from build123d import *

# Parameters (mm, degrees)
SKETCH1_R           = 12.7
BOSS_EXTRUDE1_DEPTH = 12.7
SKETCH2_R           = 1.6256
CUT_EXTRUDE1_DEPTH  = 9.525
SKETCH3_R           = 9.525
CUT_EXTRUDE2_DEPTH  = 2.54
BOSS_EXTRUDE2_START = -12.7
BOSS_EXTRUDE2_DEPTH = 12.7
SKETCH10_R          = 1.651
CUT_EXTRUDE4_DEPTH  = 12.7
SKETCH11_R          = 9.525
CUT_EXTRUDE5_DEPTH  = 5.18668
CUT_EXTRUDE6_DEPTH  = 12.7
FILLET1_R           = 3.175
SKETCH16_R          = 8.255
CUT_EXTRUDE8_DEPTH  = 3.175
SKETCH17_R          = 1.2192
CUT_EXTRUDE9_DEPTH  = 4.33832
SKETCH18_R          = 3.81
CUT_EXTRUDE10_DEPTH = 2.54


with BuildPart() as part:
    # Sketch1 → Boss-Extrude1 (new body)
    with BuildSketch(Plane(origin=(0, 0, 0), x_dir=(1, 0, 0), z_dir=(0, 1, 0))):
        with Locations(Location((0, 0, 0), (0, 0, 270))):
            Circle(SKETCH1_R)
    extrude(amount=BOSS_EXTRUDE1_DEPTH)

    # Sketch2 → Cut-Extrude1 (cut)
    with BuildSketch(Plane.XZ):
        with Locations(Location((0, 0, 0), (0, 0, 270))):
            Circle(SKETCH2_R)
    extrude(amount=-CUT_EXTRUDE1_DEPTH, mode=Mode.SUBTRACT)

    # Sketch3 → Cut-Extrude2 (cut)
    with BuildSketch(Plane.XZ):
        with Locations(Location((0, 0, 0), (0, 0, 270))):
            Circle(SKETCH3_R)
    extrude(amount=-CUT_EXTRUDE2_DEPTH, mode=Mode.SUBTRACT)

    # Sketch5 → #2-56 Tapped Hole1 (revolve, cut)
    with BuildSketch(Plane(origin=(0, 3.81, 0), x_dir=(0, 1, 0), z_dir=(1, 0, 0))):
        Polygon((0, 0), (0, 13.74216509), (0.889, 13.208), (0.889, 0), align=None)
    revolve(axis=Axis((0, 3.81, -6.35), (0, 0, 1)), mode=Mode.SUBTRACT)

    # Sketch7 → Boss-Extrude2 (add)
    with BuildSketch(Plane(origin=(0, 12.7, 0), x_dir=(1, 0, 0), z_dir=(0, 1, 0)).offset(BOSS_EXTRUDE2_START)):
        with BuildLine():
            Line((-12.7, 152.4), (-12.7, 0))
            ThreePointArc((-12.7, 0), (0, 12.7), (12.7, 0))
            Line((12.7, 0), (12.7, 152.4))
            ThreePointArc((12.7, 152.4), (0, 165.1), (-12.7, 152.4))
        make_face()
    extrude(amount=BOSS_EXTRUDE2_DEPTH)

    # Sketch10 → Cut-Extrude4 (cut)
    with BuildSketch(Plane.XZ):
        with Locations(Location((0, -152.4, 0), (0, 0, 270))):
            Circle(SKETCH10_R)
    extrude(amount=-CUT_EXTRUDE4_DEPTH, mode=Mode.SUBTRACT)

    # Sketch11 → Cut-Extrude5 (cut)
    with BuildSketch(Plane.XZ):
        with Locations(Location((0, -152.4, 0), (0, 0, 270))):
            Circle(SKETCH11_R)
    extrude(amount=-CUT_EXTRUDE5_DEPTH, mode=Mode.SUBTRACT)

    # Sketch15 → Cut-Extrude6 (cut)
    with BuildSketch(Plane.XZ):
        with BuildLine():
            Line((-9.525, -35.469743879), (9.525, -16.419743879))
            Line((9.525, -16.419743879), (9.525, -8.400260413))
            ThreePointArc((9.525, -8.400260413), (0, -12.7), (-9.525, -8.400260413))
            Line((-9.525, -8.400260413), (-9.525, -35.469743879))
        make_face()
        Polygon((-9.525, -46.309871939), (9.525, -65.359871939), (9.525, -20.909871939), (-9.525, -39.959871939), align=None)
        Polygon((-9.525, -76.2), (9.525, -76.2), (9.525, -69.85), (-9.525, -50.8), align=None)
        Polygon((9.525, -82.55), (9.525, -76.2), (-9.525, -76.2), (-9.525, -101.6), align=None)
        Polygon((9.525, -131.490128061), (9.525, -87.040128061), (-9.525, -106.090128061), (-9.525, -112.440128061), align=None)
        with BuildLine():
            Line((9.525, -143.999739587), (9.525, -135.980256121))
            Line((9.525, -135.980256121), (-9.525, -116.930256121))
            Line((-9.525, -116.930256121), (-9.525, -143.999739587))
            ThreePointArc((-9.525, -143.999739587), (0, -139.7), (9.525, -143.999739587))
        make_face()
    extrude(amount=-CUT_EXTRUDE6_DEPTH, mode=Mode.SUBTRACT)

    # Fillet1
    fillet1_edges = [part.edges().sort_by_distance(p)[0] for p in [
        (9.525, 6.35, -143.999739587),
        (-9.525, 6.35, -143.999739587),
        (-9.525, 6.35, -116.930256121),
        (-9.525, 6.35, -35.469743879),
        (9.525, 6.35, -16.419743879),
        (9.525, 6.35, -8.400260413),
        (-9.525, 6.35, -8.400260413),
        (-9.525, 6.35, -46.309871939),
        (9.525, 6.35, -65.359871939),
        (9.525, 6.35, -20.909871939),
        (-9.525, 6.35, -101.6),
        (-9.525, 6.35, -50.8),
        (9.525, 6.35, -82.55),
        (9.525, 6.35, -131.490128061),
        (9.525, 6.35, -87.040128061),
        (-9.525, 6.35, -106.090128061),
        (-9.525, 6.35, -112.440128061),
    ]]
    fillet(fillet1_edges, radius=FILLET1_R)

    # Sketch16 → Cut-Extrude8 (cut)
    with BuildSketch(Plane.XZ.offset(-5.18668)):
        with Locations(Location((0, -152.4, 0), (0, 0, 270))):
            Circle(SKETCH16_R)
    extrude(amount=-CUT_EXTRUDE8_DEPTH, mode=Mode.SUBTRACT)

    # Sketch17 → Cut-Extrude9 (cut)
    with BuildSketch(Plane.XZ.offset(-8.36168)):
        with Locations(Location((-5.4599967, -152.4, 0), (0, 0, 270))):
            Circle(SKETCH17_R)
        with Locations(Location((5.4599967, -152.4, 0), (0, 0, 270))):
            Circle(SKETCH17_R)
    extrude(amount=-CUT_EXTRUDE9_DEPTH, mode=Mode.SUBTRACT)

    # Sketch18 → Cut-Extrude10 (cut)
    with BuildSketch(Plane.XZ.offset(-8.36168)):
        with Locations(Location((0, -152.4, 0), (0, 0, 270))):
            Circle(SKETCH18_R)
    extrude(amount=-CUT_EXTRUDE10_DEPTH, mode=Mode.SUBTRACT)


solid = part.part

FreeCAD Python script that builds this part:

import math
import FreeCAD as App
import Part
import Sketcher
Q = App.Units.Quantity


def edges_at(feature, points):
    """Names of the edges that pass closest to the given points."""
    edges = feature.Shape.Edges
    near = lambda p: min(range(len(edges)), key=lambda i: edges[i].distToShape(Part.Vertex(*p))[0])
    return sorted({f"Edge{near(p) + 1}" for p in points})

doc = App.newDocument("Part")
body = doc.addObject("PartDesign::Body", "Body")

sketch1 = doc.addObject("Sketcher::SketchObject", "Sketch")
body.addObject(sketch1)
sketch1.AttachmentSupport = (doc.XZ_Plane, [""])
sketch1.MapMode = "FlatFace"
sketch1.addGeometry(Part.Circle(App.Vector(0, 0, 0), App.Vector(0, 0, 1), 13), False)
sketch1.addConstraint([
    Sketcher.Constraint("Coincident", 0, 3, -1, 1),
    Sketcher.Constraint("Diameter", 0, Q("1 in")),
])
pad1 = doc.addObject("PartDesign::Pad", "Pad")
body.addObject(pad1)
pad1.Profile = sketch1
pad1.Length = Q("0.5 in")
pad1.Reversed = True

sketch2 = doc.addObject("Sketcher::SketchObject", "Sketch001")
body.addObject(sketch2)
sketch2.AttachmentSupport = (doc.XZ_Plane, [""])
sketch2.MapMode = "FlatFace"
sketch2.addGeometry(Part.Circle(App.Vector(0, 0, 0), App.Vector(0, 0, 1), 1.6), False)
sketch2.addConstraint([
    Sketcher.Constraint("Coincident", 0, 3, -1, 1),
    Sketcher.Constraint("Diameter", 0, Q("0.128 in")),
])
pocket1 = doc.addObject("PartDesign::Pocket", "Pocket")
body.addObject(pocket1)
pocket1.Profile = sketch2
pocket1.Length = Q("0.375 in")

sketch3 = doc.addObject("Sketcher::SketchObject", "Sketch002")
body.addObject(sketch3)
sketch3.AttachmentSupport = (doc.XZ_Plane, [""])
sketch3.MapMode = "FlatFace"
sketch3.addGeometry(Part.Circle(App.Vector(0, 0, 0), App.Vector(0, 0, 1), 10), False)
sketch3.addConstraint([
    Sketcher.Constraint("Coincident", 0, 3, -1, 1),
    Sketcher.Constraint("Diameter", 0, Q("0.75 in")),
])
pocket2 = doc.addObject("PartDesign::Pocket", "Pocket001")
body.addObject(pocket2)
pocket2.Profile = sketch3
pocket2.Length = Q("0.1 in")

sketch4 = doc.addObject("Sketcher::SketchObject", "Sketch003")
body.addObject(sketch4)
sketch4.AttachmentSupport = (doc.YZ_Plane, [""])
sketch4.MapMode = "FlatFace"
sketch4.addGeometry([
    Part.LineSegment(App.Vector(3.8, 13.7, 0), App.Vector(3.8, 0, 0)),
    Part.LineSegment(App.Vector(3.8, 0, 0), App.Vector(4.7, 0, 0)),
    Part.LineSegment(App.Vector(4.7, 0, 0), App.Vector(4.7, 13.2, 0)),
    Part.LineSegment(App.Vector(4.7, 13.2, 0), App.Vector(3.8, 13.7, 0)),
], False)
sketch4.addGeometry(Part.LineSegment(App.Vector(3.8, 0, 0), App.Vector(3.8, 13.7, 0)), True)
sketch4.addConstraint([
    Sketcher.Constraint("Coincident", 0, 2, 1, 1),
    Sketcher.Constraint("Coincident", 1, 2, 2, 1),
    Sketcher.Constraint("Coincident", 2, 2, 3, 1),
    Sketcher.Constraint("Coincident", 3, 2, 0, 1),
    Sketcher.Constraint("Vertical", 0),
    Sketcher.Constraint("Horizontal", 1),
    Sketcher.Constraint("Vertical", 2),
    Sketcher.Constraint("Vertical", 4),
    Sketcher.Constraint("Coincident", 4, 1, 0, 2),
    Sketcher.Constraint("PointOnObject", 0, 2, -1),
    Sketcher.Constraint("Equal", 0, 4),
    Sketcher.Constraint("Angle", 3, Q("149 deg")),
    Sketcher.Constraint("DistanceY", 2, 1, 2, 2, Q("0.52 in")),
    Sketcher.Constraint("DistanceX", 1, 1, 1, 2, Q("0.035 in")),
    Sketcher.Constraint("DistanceX", -1, 1, 0, 2, Q("0.15 in")),
])
groove = doc.addObject("PartDesign::Groove", "Groove")
body.addObject(groove)
groove.Profile = sketch4
groove.ReferenceAxis = (sketch4, ["Axis0"])
groove.Angle = 360

sketch5 = doc.addObject("Sketcher::SketchObject", "Sketch004")
body.addObject(sketch5)
sketch5.AttachmentSupport = (doc.XZ_Plane, [""])
sketch5.MapMode = "FlatFace"
sketch5.addGeometry([
    Part.LineSegment(App.Vector(-13, -152, 0), App.Vector(-13, 0, 0)),
    Part.ArcOfCircle(Part.Circle(App.Vector(0, 0, 0), App.Vector(0, 0, 1), 13), math.radians(180), math.radians(360)),
    Part.LineSegment(App.Vector(13, 0, 0), App.Vector(13, -152, 0)),
    Part.ArcOfCircle(Part.Circle(App.Vector(0, -152, 0), App.Vector(0, 0, 1), 13), math.radians(180), math.radians(360)),
], False)
sketch5.addConstraint([
    Sketcher.Constraint("Tangent", 0, 2, 1, 1),
    Sketcher.Constraint("Tangent", 1, 2, 2, 1),
    Sketcher.Constraint("Tangent", 2, 2, 3, 2),
    Sketcher.Constraint("Tangent", 3, 1, 0, 1),
    Sketcher.Constraint("Vertical", 0),
    Sketcher.Constraint("Vertical", 2),
    Sketcher.Constraint("Coincident", 1, 3, -1, 1),
    Sketcher.Constraint("Radius", 1, Q("0.5 in")),
    Sketcher.Constraint("DistanceY", 0, 1, 0, 2, Q("6 in")),
])
pad2 = doc.addObject("PartDesign::Pad", "Pad001")
body.addObject(pad2)
pad2.Profile = sketch5
pad2.Length = Q("0.5 in")
pad2.Reversed = True

sketch6 = doc.addObject("Sketcher::SketchObject", "Sketch005")
body.addObject(sketch6)
sketch6.AttachmentSupport = (doc.XZ_Plane, [""])
sketch6.MapMode = "FlatFace"
sketch6.addGeometry(Part.Circle(App.Vector(0, -152.4, 0), App.Vector(0, 0, 1), 1.7), False)
sketch6.addConstraint([
    Sketcher.Constraint("PointOnObject", 0, 3, -2),
    Sketcher.Constraint("Diameter", 0, Q("0.13 in")),
    Sketcher.Constraint("DistanceY", 0, 3, -1, 1, Q("6 in")),
])
pocket3 = doc.addObject("PartDesign::Pocket", "Pocket002")
body.addObject(pocket3)
pocket3.Profile = sketch6
pocket3.Length = Q("0.5 in")

sketch7 = doc.addObject("Sketcher::SketchObject", "Sketch006")
body.addObject(sketch7)
sketch7.AttachmentSupport = (doc.XZ_Plane, [""])
sketch7.MapMode = "FlatFace"
sketch7.addGeometry(Part.Circle(App.Vector(0, -152, 0), App.Vector(0, 0, 1), 10), False)
sketch7.addConstraint([
    Sketcher.Constraint("PointOnObject", 0, 3, -2),
    Sketcher.Constraint("Diameter", 0, Q("0.75 in")),
    Sketcher.Constraint("DistanceY", 0, 3, -1, 1, Q("6 in")),
])
pocket4 = doc.addObject("PartDesign::Pocket", "Pocket003")
body.addObject(pocket4)
pocket4.Profile = sketch7
pocket4.Length = Q("0.2042 in")

sketch8 = doc.addObject("Sketcher::SketchObject", "Sketch007")
body.addObject(sketch8)
sketch8.AttachmentSupport = (doc.XZ_Plane, [""])
sketch8.MapMode = "FlatFace"
sketch8.addGeometry([
    Part.LineSegment(App.Vector(-10, -35, 0), App.Vector(10, -16, 0)),
    Part.LineSegment(App.Vector(10, -16, 0), App.Vector(10, -8, 0)),
    Part.ArcOfCircle(Part.Circle(App.Vector(0, 0, 0), App.Vector(0, 0, 1), 13), math.radians(-139), math.radians(-41)),
    Part.LineSegment(App.Vector(-10, -8, 0), App.Vector(-10, -35, 0)),
    Part.LineSegment(App.Vector(-10, -46, 0), App.Vector(10, -65, 0)),
    Part.LineSegment(App.Vector(10, -65, 0), App.Vector(10, -21, 0)),
    Part.LineSegment(App.Vector(10, -21, 0), App.Vector(-10, -40, 0)),
    Part.LineSegment(App.Vector(-10, -40, 0), App.Vector(-10, -46, 0)),
    Part.LineSegment(App.Vector(10, -70, 0), App.Vector(-10, -51, 0)),
    Part.LineSegment(App.Vector(-10, -51, 0), App.Vector(-10, -102, 0)),
    Part.LineSegment(App.Vector(-10, -102, 0), App.Vector(10, -83, 0)),
    Part.LineSegment(App.Vector(10, -83, 0), App.Vector(10, -70, 0)),
    Part.LineSegment(App.Vector(10, -131, 0), App.Vector(10, -87, 0)),
    Part.LineSegment(App.Vector(10, -87, 0), App.Vector(-10, -106, 0)),
    Part.LineSegment(App.Vector(-10, -106, 0), App.Vector(-10, -112, 0)),
    Part.LineSegment(App.Vector(-10, -112, 0), App.Vector(10, -131, 0)),
    Part.LineSegment(App.Vector(10, -144, 0), App.Vector(10, -136, 0)),
    Part.LineSegment(App.Vector(10, -136, 0), App.Vector(-10, -117, 0)),
    Part.LineSegment(App.Vector(-10, -117, 0), App.Vector(-10, -144, 0)),
    Part.ArcOfCircle(Part.Circle(App.Vector(0, -152, 0), App.Vector(0, 0, 1), 13), math.radians(41), math.radians(139)),
], False)
sketch8.addConstraint([
    Sketcher.Constraint("Coincident", 0, 2, 1, 1),
    Sketcher.Constraint("Coincident", 1, 2, 2, 2),
    Sketcher.Constraint("Coincident", 2, 1, 3, 1),
    Sketcher.Constraint("Coincident", 3, 2, 0, 1),
    Sketcher.Constraint("Coincident", 4, 2, 5, 1),
    Sketcher.Constraint("Coincident", 5, 2, 6, 1),
    Sketcher.Constraint("Coincident", 6, 2, 7, 1),
    Sketcher.Constraint("Coincident", 7, 2, 4, 1),
    Sketcher.Constraint("Coincident", 8, 2, 9, 1),
    Sketcher.Constraint("Coincident", 9, 2, 10, 1),
    Sketcher.Constraint("Coincident", 10, 2, 11, 1),
    Sketcher.Constraint("Coincident", 11, 2, 8, 1),
    Sketcher.Constraint("Coincident", 12, 2, 13, 1),
    Sketcher.Constraint("Coincident", 13, 2, 14, 1),
    Sketcher.Constraint("Coincident", 14, 2, 15, 1),
    Sketcher.Constraint("Coincident", 15, 2, 12, 1),
    Sketcher.Constraint("Coincident", 16, 2, 17, 1),
    Sketcher.Constraint("Coincident", 17, 2, 18, 1),
    Sketcher.Constraint("Coincident", 18, 2, 19, 2),
    Sketcher.Constraint("Coincident", 19, 1, 16, 1),
    Sketcher.Constraint("Vertical", 1),
    Sketcher.Constraint("Vertical", 3),
    Sketcher.Constraint("Vertical", 5),
    Sketcher.Constraint("Vertical", 7),
    Sketcher.Constraint("Vertical", 9),
    Sketcher.Constraint("Vertical", 11),
    Sketcher.Constraint("Vertical", 12),
    Sketcher.Constraint("Vertical", 14),
    Sketcher.Constraint("Vertical", 16),
    Sketcher.Constraint("Vertical", 18),
    Sketcher.Constraint("Coincident", 2, 3, -1, 1),
    Sketcher.Constraint("Equal", 2, 19),
    Sketcher.Constraint("Symmetric", 18, 2, 19, 1, -2),
    Sketcher.Constraint("Perpendicular", 0, 4),
    Sketcher.Constraint("Perpendicular", 4, 6),
    Sketcher.Constraint("Perpendicular", 6, 8),
    Sketcher.Constraint("Perpendicular", 8, 10),
    Sketcher.Constraint("Parallel", 10, 13),
    Sketcher.Constraint("Perpendicular", 13, 15),
    Sketcher.Constraint("Parallel", 15, 17),
    Sketcher.Constraint("Horizontal", 1, 2, 2, 1),
    Sketcher.Constraint("Vertical", 1, 2, 4, 2),
    Sketcher.Constraint("Vertical", 3, 2, 6, 2),
    Sketcher.Constraint("Vertical", 7, 2, 8, 2),
    Sketcher.Constraint("Vertical", 5, 2, 10, 2),
    Sketcher.Constraint("Vertical", 11, 2, 12, 2),
    Sketcher.Constraint("Vertical", 9, 2, 13, 2),
    Sketcher.Constraint("Vertical", 15, 2, 16, 2),
    Sketcher.Constraint("Equal", 5, 12),
    Sketcher.Constraint("Equal", 1, 16),
    Sketcher.Constraint("Equal", 3, 18),
    Sketcher.Constraint("Radius", 2, Q("0.5 in")),
    Sketcher.Constraint("DistanceY", 9, 2, 9, 1, Q("2 in")),
    Sketcher.Constraint("DistanceY", 11, 1, 11, 2, Q("0.5 in")),
    Sketcher.Constraint("DistanceY", 19, 3, -1, 1, Q("6 in")),
    Sketcher.Constraint("DistanceY", 8, 2, -1, 1, Q("2 in")),
    Sketcher.Constraint("DistanceY", 4, 2, 6, 2, Q("1 in")),
    Sketcher.Constraint("DistanceY", 1, 1, 1, 2, 8.019483),
    Sketcher.Constraint("DistanceY", 4, 2, -1, 1, 65.359872),
    Sketcher.Constraint("DistanceY", 12, 2, -1, 1, 87.040128),
])
pocket5 = doc.addObject("PartDesign::Pocket", "Pocket004")
body.addObject(pocket5)
pocket5.Profile = sketch8
pocket5.Length = Q("0.5 in")
doc.recompute()

fillet = doc.addObject("PartDesign::Fillet", "Fillet")
body.addObject(fillet)
fillet.Base = (pocket5, edges_at(pocket5, [
    (9.525, 6.35, -144),
    (-9.525, 6.35, -144),
    (-9.525, 6.35, -116.93),
    (-9.525, 6.35, -35.47),
    (9.525, 6.35, -16.42),
    (9.525, 6.35, -8.4),
    (-9.525, 6.35, -8.4),
    (-9.525, 6.35, -46.31),
    (9.525, 6.35, -65.36),
    (9.525, 6.35, -20.91),
    (-9.525, 6.35, -101.6),
    (-9.525, 6.35, -50.8),
    (9.525, 6.35, -82.55),
    (9.525, 6.35, -131.49),
    (9.525, 6.35, -87.04),
    (-9.525, 6.35, -106.09),
    (-9.525, 6.35, -112.44),
]))
fillet.Radius = Q("0.125 in")

sketch9 = doc.addObject("Sketcher::SketchObject", "Sketch008")
body.addObject(sketch9)
sketch9.AttachmentSupport = (doc.XZ_Plane, [""])
sketch9.MapMode = "FlatFace"
sketch9.AttachmentOffset = App.Placement(App.Vector(0, 0, -0.2042 * 25.4), App.Rotation())
sketch9.addGeometry(Part.Circle(App.Vector(0, -152, 0), App.Vector(0, 0, 1), 8), False)
sketch9.addConstraint([
    Sketcher.Constraint("PointOnObject", 0, 3, -2),
    Sketcher.Constraint("Diameter", 0, Q("0.65 in")),
    Sketcher.Constraint("DistanceY", 0, 3, -1, 1, Q("6 in")),
])
pocket6 = doc.addObject("PartDesign::Pocket", "Pocket005")
body.addObject(pocket6)
pocket6.Profile = sketch9
pocket6.Length = Q("0.125 in")

sketch10 = doc.addObject("Sketcher::SketchObject", "Sketch009")
body.addObject(sketch10)
sketch10.AttachmentSupport = (doc.XZ_Plane, [""])
sketch10.MapMode = "FlatFace"
sketch10.AttachmentOffset = App.Placement(App.Vector(0, 0, -0.3292 * 25.4), App.Rotation())
sketch10.addGeometry([
    Part.Circle(App.Vector(-5.5, -152.4, 0), App.Vector(0, 0, 1), 1.2),
    Part.Circle(App.Vector(5.5, -152.4, 0), App.Vector(0, 0, 1), 1.2),
], False)
sketch10.addConstraint([
    Sketcher.Constraint("Equal", 0, 1),
    Sketcher.Constraint("Symmetric", 0, 3, 1, 3, -2),
    Sketcher.Constraint("Diameter", 0, Q("0.096 in")),
    Sketcher.Constraint("DistanceY", 0, 3, -1, 1, Q("6 in")),
    Sketcher.Constraint("DistanceX", 0, 3, -1, 1, 5.459997),
])
pocket7 = doc.addObject("PartDesign::Pocket", "Pocket006")
body.addObject(pocket7)
pocket7.Profile = sketch10
pocket7.Length = Q("0.1708 in")

sketch11 = doc.addObject("Sketcher::SketchObject", "Sketch010")
body.addObject(sketch11)
sketch11.AttachmentSupport = (doc.XZ_Plane, [""])
sketch11.MapMode = "FlatFace"
sketch11.AttachmentOffset = App.Placement(App.Vector(0, 0, -0.3292 * 25.4), App.Rotation())
sketch11.addGeometry(Part.Circle(App.Vector(0, -152.4, 0), App.Vector(0, 0, 1), 3.8), False)
sketch11.addConstraint([
    Sketcher.Constraint("PointOnObject", 0, 3, -2),
    Sketcher.Constraint("Diameter", 0, Q("0.3 in")),
    Sketcher.Constraint("DistanceY", 0, 3, -1, 1, Q("6 in")),
])
pocket8 = doc.addObject("PartDesign::Pocket", "Pocket007")
body.addObject(pocket8)
pocket8.Profile = sketch11
pocket8.Length = Q("0.1 in")

doc.recompute()
